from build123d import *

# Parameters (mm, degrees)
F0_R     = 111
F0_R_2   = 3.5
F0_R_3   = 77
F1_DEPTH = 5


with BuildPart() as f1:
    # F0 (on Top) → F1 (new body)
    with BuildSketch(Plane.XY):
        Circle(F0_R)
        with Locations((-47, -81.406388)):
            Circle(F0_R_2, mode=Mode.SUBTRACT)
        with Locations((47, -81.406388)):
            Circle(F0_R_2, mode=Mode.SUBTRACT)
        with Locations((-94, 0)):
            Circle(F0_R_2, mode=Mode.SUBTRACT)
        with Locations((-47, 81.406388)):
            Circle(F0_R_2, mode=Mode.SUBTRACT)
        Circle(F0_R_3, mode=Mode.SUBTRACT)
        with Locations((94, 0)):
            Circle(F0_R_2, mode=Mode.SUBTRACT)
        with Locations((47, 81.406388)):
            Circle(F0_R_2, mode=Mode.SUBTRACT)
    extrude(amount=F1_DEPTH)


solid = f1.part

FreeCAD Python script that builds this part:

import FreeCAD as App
import Part
import Sketcher
Q = App.Units.Quantity

doc = App.newDocument("Part")
params = doc.addObject("Spreadsheet::Sheet", "Params")
for row, (alias, value) in enumerate([
    ("sketch1_diameter", "222 mm"),
    ("sketch1_diameter2", "7 mm"),
    ("sketch1_diameter3", "154 mm"),
    ("pad1_length", "5 mm"),
], start=1):
    params.set(f"A{row}", alias)
    params.set(f"B{row}", "=" + value)
    params.setAlias(f"B{row}", alias)

body = doc.addObject("PartDesign::Body", "Body")

sketch1 = body.newObject("Sketcher::SketchObject", "Sketch")
sketch1.AttachmentSupport = (doc.getObject("XY_Plane"), [""])
sketch1.MapMode = "FlatFace"
sketch1.addGeometry([
    Part.Circle(App.Vector(0, 0, 0), App.Vector(0, 0, 1), 111),
    Part.Circle(App.Vector(-47, -81.4, 0), App.Vector(0, 0, 1), 3.5),
    Part.Circle(App.Vector(47, -81.4, 0), App.Vector(0, 0, 1), 3.5),
    Part.Circle(App.Vector(-94, 0, 0), App.Vector(0, 0, 1), 3.5),
    Part.Circle(App.Vector(-47, 81.4, 0), App.Vector(0, 0, 1), 3.5),
    Part.Circle(App.Vector(0, 0, 0), App.Vector(0, 0, 1), 77),
    Part.Circle(App.Vector(94, 0, 0), App.Vector(0, 0, 1), 3.5),
    Part.Circle(App.Vector(47, 81.4, 0), App.Vector(0, 0, 1), 3.5),
], False)
sketch1.addConstraint([
    Sketcher.Constraint("Coincident", 0, 3, -1, 1),
    Sketcher.Constraint("Coincident", 5, 3, -1, 1),
    Sketcher.Constraint("Equal", 1, 2),
    Sketcher.Constraint("Equal", 2, 3),
    Sketcher.Constraint("Equal", 3, 4),
    Sketcher.Constraint("Equal", 4, 6),
    Sketcher.Constraint("Equal", 6, 7),
    Sketcher.Constraint("Symmetric", 2, 3, 4, 3, -1, 1),
    Sketcher.Constraint("Symmetric", 3, 3, 6, 3, -1, 1),
    Sketcher.Constraint("Symmetric", 1, 3, 7, 3, -1, 1),
    Sketcher.Constraint("Symmetric", 1, 3, 2, 3, -2),
    Sketcher.Constraint("PointOnObject", 3, 3, -1),
    Sketcher.Constraint("Diameter", 0, Q("222 mm")),
    Sketcher.Constraint("Diameter", 1, Q("7 mm")),
    Sketcher.Constraint("Diameter", 5, Q("154 mm")),
    Sketcher.Constraint("DistanceX", 1, 3, -1, 1, Q("47 mm")),
    Sketcher.Constraint("DistanceX", 3, 3, -1, 1, Q("94 mm")),
    Sketcher.Constraint("DistanceY", 1, 3, -1, 1, Q("81.406388 mm")),
])
sketch1.setExpression("Constraints[12]", "Params.sketch1_diameter")
sketch1.setExpression("Constraints[13]", "Params.sketch1_diameter2")
sketch1.setExpression("Constraints[14]", "Params.sketch1_diameter3")
pad1 = body.newObject("PartDesign::Pad", "Pad")
pad1.Profile = sketch1
pad1.setExpression("Length", "Params.pad1_length")

doc.recompute()
